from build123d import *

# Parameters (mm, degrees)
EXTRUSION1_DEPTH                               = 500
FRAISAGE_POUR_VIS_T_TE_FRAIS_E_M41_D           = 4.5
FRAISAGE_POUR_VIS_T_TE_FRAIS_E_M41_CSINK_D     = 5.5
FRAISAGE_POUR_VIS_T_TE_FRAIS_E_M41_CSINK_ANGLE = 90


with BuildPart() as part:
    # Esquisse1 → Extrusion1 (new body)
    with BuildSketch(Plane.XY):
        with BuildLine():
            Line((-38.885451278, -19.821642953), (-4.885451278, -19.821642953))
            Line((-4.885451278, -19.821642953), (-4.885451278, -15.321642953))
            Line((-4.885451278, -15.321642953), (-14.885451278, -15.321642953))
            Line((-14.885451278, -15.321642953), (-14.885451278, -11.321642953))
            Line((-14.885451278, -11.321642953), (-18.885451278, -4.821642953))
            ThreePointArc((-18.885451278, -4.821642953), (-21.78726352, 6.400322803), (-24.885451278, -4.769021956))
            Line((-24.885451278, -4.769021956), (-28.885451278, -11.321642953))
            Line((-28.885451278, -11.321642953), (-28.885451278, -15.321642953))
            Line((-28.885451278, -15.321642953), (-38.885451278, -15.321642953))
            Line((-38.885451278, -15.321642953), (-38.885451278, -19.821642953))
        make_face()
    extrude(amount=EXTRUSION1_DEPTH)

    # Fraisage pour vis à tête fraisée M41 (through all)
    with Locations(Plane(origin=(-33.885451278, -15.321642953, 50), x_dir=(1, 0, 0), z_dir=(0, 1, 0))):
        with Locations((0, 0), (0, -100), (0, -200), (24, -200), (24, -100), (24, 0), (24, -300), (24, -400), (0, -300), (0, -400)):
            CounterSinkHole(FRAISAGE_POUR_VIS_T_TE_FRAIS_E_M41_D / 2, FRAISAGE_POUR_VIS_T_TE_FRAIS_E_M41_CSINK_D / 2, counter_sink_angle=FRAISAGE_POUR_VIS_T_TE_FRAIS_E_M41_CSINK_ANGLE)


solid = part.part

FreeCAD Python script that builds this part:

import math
import FreeCAD as App
import Part
import Sketcher
from FreeCAD import Vector

doc = App.newDocument("Part")
body = doc.addObject("PartDesign::Body", "Body")

# Sketch on XY plane
sketch1 = body.newObject("Sketcher::SketchObject", "Sketch")
sketch1.AttachmentSupport = (doc.getObject("XY_Plane"), [""])
sketch1.MapMode = "FlatFace"
sketch1.addGeometry([
    Part.LineSegment(Vector(-38.9, -19.8, 0), Vector(-4.9, -19.8, 0)),  # 0
    Part.LineSegment(Vector(-4.9, -19.8, 0), Vector(-4.9, -15.3, 0)),  # 1
    Part.LineSegment(Vector(-4.9, -15.3, 0), Vector(-14.9, -15.3, 0)),  # 2
    Part.LineSegment(Vector(-14.9, -15.3, 0), Vector(-14.9, -11.3, 0)),  # 3
    Part.LineSegment(Vector(-14.9, -11.3, 0), Vector(-18.9, -4.8, 0)),  # 4
    Part.ArcOfCircle(Part.Circle(Vector(-21.8, 0.4, 0), Vector(0, 0, 1), 6), math.radians(-61), math.radians(239)),  # 5
    Part.LineSegment(Vector(-24.9, -4.8, 0), Vector(-28.9, -11.3, 0)),  # 6
    Part.LineSegment(Vector(-28.9, -11.3, 0), Vector(-28.9, -15.3, 0)),  # 7
    Part.LineSegment(Vector(-28.9, -15.3, 0), Vector(-38.9, -15.3, 0)),  # 8
    Part.LineSegment(Vector(-38.9, -15.3, 0), Vector(-38.9, -19.8, 0)),  # 9
], False)
sketch1.addConstraint([
    Sketcher.Constraint("Coincident", 0, 2, 1, 1),
    Sketcher.Constraint("Coincident", 1, 2, 2, 1),
    Sketcher.Constraint("Coincident", 2, 2, 3, 1),
    Sketcher.Constraint("Coincident", 3, 2, 4, 1),
    Sketcher.Constraint("Coincident", 4, 2, 5, 1),
    Sketcher.Constraint("Coincident", 5, 2, 6, 1),
    Sketcher.Constraint("Coincident", 6, 2, 7, 1),
    Sketcher.Constraint("Coincident", 7, 2, 8, 1),
    Sketcher.Constraint("Coincident", 8, 2, 9, 1),
    Sketcher.Constraint("Coincident", 9, 2, 0, 1),
    Sketcher.Constraint("Horizontal", 0),
    Sketcher.Constraint("Vertical", 1),
    Sketcher.Constraint("Horizontal", 2),
    Sketcher.Constraint("Vertical", 3),
    Sketcher.Constraint("Vertical", 7),
    Sketcher.Constraint("Horizontal", 8),
    Sketcher.Constraint("Vertical", 9),
    Sketcher.Constraint("Horizontal", 3, 2, 6, 2),
    Sketcher.Constraint("Horizontal", 2, 2, 7, 2),
    Sketcher.Constraint("Equal", 2, 8),
    Sketcher.Constraint("Radius", 5, 6.0),
    Sketcher.Constraint("DistanceX", 0, 1, 0, 2, 34.0),
    Sketcher.Constraint("DistanceX", 2, 2, 2, 1, 10.0),
    Sketcher.Constraint("DistanceY", 3, 1, 3, 2, 4.0),
    Sketcher.Constraint("DistanceY", 1, 1, 1, 2, 4.5),
    Sketcher.Constraint("DistanceX", 4, 2, 3, 2, 4.0),
    Sketcher.Constraint("DistanceY", 0, 2, 4, 2, 15.0),
    Sketcher.Constraint("DistanceX", 5, 2, 4, 2, 6.0),
    Sketcher.Constraint("DistanceX", 0, 2, -1, 1, 4.885451),
    Sketcher.Constraint("DistanceY", 5, 2, -1, 1, 4.769022),
    Sketcher.Constraint("DistanceX", 5, 3, 0, 2, 16.954431),
])
pad1 = body.newObject("PartDesign::Pad", "Pad")
pad1.Profile = sketch1
pad1.Length = 500

# Sketch on XZ plane
sketch2 = body.newObject("Sketcher::SketchObject", "Sketch001")
sketch2.AttachmentSupport = (doc.getObject("XZ_Plane"), [""])
sketch2.MapMode = "FlatFace"
sketch2.AttachmentOffset = App.Placement(Vector(0, 0, 15.321643), App.Rotation())
sketch2.addGeometry([
    Part.Circle(Vector(-33.9, 50, 0), Vector(0, 0, 1), 2.2),  # 0
    Part.Circle(Vector(-33.9, 150, 0), Vector(0, 0, 1), 2.2),  # 1
    Part.Circle(Vector(-33.9, 250, 0), Vector(0, 0, 1), 2.2),  # 2
    Part.Circle(Vector(-9.9, 250, 0), Vector(0, 0, 1), 2.2),  # 3
    Part.Circle(Vector(-9.9, 150, 0), Vector(0, 0, 1), 2.2),  # 4
    Part.Circle(Vector(-9.9, 50, 0), Vector(0, 0, 1), 2.2),  # 5
    Part.Circle(Vector(-9.9, 350, 0), Vector(0, 0, 1), 2.2),  # 6
    Part.Circle(Vector(-9.9, 450, 0), Vector(0, 0, 1), 2.2),  # 7
    Part.Circle(Vector(-33.9, 350, 0), Vector(0, 0, 1), 2.2),  # 8
    Part.Circle(Vector(-33.9, 450, 0), Vector(0, 0, 1), 2.2),  # 9
], False)
sketch2.addConstraint([
    Sketcher.Constraint("Equal", 0, 1),
    Sketcher.Constraint("Equal", 1, 2),
    Sketcher.Constraint("Equal", 2, 3),
    Sketcher.Constraint("Equal", 3, 4),
    Sketcher.Constraint("Equal", 4, 5),
    Sketcher.Constraint("Equal", 5, 6),
    Sketcher.Constraint("Equal", 6, 7),
    Sketcher.Constraint("Equal", 7, 8),
    Sketcher.Constraint("Equal", 8, 9),
    Sketcher.Constraint("Horizontal", 2, 3, 3, 3),
    Sketcher.Constraint("Horizontal", 1, 3, 4, 3),
    Sketcher.Constraint("Horizontal", 0, 3, 5, 3),
    Sketcher.Constraint("Horizontal", 6, 3, 8, 3),
    Sketcher.Constraint("Horizontal", 7, 3, 9, 3),
    Sketcher.Constraint("Vertical", 0, 3, 1, 3),
    Sketcher.Constraint("Vertical", 1, 3, 2, 3),
    Sketcher.Constraint("Vertical", 3, 3, 4, 3),
    Sketcher.Constraint("Vertical", 4, 3, 5, 3),
    Sketcher.Constraint("Vertical", 5, 3, 6, 3),
    Sketcher.Constraint("Vertical", 6, 3, 7, 3),
    Sketcher.Constraint("Vertical", 2, 3, 8, 3),
    Sketcher.Constraint("Vertical", 8, 3, 9, 3),
    Sketcher.Constraint("Diameter", 0, 4.5),
    Sketcher.Constraint("DistanceY", -1, 1, 0, 3, 50.0),
    Sketcher.Constraint("DistanceY", -1, 1, 1, 3, 150.0),
    Sketcher.Constraint("DistanceY", -1, 1, 2, 3, 250.0),
    Sketcher.Constraint("DistanceY", -1, 1, 6, 3, 350.0),
    Sketcher.Constraint("DistanceY", -1, 1, 7, 3, 450.0),
    Sketcher.Constraint("DistanceX", 2, 3, 3, 3, 24.0),
    Sketcher.Constraint("DistanceX", 0, 3, -1, 1, 33.885451),
])
doc.recompute()
hole = body.newObject("PartDesign::Hole", "Hole")
hole.Profile = sketch2
hole.ThreadType = "None"
hole.Diameter = 4.5
hole.DepthType = "ThroughAll"
hole.HoleCutType = "Countersink"
hole.HoleCutDiameter = 5.5
hole.HoleCutCountersinkAngle = 90
hole.Reversed = True

doc.recompute()
